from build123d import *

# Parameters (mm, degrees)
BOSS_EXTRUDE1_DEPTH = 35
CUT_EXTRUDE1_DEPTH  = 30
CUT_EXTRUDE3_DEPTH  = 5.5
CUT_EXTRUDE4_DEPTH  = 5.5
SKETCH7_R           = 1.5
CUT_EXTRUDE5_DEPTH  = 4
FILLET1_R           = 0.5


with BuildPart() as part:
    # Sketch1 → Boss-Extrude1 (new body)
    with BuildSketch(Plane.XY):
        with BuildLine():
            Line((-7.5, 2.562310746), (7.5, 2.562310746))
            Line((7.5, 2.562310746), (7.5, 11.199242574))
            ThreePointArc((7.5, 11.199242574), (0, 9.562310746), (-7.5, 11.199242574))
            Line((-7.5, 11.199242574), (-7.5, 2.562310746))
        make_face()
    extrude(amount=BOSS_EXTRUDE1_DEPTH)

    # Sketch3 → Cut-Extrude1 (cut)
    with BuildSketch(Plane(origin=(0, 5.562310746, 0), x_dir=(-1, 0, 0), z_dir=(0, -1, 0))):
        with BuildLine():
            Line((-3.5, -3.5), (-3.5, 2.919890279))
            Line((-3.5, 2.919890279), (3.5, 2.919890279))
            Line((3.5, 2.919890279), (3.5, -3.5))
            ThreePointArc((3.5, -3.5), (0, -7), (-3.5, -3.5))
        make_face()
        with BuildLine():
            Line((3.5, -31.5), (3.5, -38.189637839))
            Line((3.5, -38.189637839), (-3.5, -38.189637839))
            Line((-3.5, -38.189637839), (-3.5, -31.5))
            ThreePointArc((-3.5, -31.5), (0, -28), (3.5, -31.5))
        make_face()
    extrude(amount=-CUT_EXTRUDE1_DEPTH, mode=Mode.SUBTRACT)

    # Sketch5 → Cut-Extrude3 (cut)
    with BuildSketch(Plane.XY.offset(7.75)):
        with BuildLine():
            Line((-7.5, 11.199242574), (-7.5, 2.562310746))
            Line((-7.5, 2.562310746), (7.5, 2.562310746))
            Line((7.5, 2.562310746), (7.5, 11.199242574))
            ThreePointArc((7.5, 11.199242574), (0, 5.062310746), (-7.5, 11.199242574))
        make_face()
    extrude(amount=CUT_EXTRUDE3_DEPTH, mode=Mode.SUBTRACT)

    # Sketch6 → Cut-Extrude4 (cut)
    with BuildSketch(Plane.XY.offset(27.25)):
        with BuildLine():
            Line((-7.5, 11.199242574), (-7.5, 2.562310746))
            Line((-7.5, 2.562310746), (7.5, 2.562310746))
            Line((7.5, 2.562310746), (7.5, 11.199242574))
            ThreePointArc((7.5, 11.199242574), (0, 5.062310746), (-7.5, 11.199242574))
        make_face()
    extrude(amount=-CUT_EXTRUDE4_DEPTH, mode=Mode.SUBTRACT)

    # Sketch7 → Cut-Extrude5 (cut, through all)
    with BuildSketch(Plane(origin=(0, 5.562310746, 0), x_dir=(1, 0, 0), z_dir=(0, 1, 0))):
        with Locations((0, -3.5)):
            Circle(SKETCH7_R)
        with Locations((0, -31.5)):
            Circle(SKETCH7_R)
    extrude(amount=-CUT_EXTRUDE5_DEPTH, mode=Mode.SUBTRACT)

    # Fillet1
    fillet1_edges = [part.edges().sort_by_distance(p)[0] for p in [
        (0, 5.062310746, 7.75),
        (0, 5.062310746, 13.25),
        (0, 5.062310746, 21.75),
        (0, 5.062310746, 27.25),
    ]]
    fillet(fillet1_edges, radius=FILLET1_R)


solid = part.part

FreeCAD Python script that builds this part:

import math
import FreeCAD as App
import Part
import Sketcher
Q = App.Units.Quantity


def edges_at(feature, points):
    """Names of the edges that pass closest to the given points."""
    edges = feature.Shape.Edges
    near = lambda p: min(range(len(edges)), key=lambda i: edges[i].distToShape(Part.Vertex(*p))[0])
    return sorted({f"Edge{near(p) + 1}" for p in points})

doc = App.newDocument("Part")
body = doc.addObject("PartDesign::Body", "Body")

sketch1 = body.newObject("Sketcher::SketchObject", "Sketch")
sketch1.AttachmentSupport = (doc.getObject("XY_Plane"), [""])
sketch1.MapMode = "FlatFace"
sketch1.addGeometry([
    Part.LineSegment(App.Vector(-8, 3, 0), App.Vector(8, 3, 0)),
    Part.LineSegment(App.Vector(8, 3, 0), App.Vector(8, 11, 0)),
    Part.ArcOfCircle(Part.Circle(App.Vector(0, 28, 0), App.Vector(0, 0, 1), 18), math.radians(-115), math.radians(-65)),
    Part.LineSegment(App.Vector(-8, 11, 0), App.Vector(-8, 3, 0)),
], False)
sketch1.addConstraint([
    Sketcher.Constraint("Coincident", 0, 2, 1, 1),
    Sketcher.Constraint("Coincident", 1, 2, 2, 2),
    Sketcher.Constraint("Coincident", 2, 1, 3, 1),
    Sketcher.Constraint("Coincident", 3, 2, 0, 1),
    Sketcher.Constraint("Horizontal", 0),
    Sketcher.Constraint("Vertical", 1),
    Sketcher.Constraint("Vertical", 3),
    Sketcher.Constraint("Symmetric", 1, 2, 2, 1, -2),
    Sketcher.Constraint("Radius", 2, Q("18 mm")),
    Sketcher.Constraint("DistanceX", 0, 1, 0, 2, Q("15 mm")),
    Sketcher.Constraint("DistanceY", 0, 2, 2, 3, Q("25 mm")),
    Sketcher.Constraint("DistanceY", -1, 1, 2, 3, Q("27.562311 mm")),
])
pad1 = body.newObject("PartDesign::Pad", "Pad")
pad1.Profile = sketch1
pad1.Length = 35

sketch2 = body.newObject("Sketcher::SketchObject", "Sketch001")
sketch2.AttachmentSupport = (doc.getObject("XZ_Plane"), [""])
sketch2.MapMode = "FlatFace"
sketch2.AttachmentOffset = App.Placement(App.Vector(0, 0, -5.562311), App.Rotation())
sketch2.addGeometry([
    Part.LineSegment(App.Vector(3.5, -2.9, 0), App.Vector(3.5, 3.5, 0)),
    Part.ArcOfCircle(Part.Circle(App.Vector(0, 3.5, 0), App.Vector(0, 0, 1), 3.5), math.radians(0), math.radians(180)),
    Part.LineSegment(App.Vector(-3.5, 3.5, 0), App.Vector(-3.5, -2.9, 0)),
    Part.LineSegment(App.Vector(-3.5, -2.9, 0), App.Vector(3.5, -2.9, 0)),
    Part.LineSegment(App.Vector(-3.5, 38.2, 0), App.Vector(-3.5, 31.5, 0)),
    Part.ArcOfCircle(Part.Circle(App.Vector(0, 31.5, 0), App.Vector(0, 0, 1), 3.5), math.radians(180), math.radians(360)),
    Part.LineSegment(App.Vector(3.5, 31.5, 0), App.Vector(3.5, 38.2, 0)),
    Part.LineSegment(App.Vector(3.5, 38.2, 0), App.Vector(-3.5, 38.2, 0)),
], False)
sketch2.addConstraint([
    Sketcher.Constraint("Tangent", 0, 2, 1, 1),
    Sketcher.Constraint("Tangent", 1, 2, 2, 1),
    Sketcher.Constraint("Coincident", 2, 2, 3, 1),
    Sketcher.Constraint("Coincident", 3, 2, 0, 1),
    Sketcher.Constraint("Tangent", 4, 2, 5, 1),
    Sketcher.Constraint("Tangent", 5, 2, 6, 1),
    Sketcher.Constraint("Coincident", 6, 2, 7, 1),
    Sketcher.Constraint("Coincident", 7, 2, 4, 1),
    Sketcher.Constraint("Vertical", 0),
    Sketcher.Constraint("Vertical", 2),
    Sketcher.Constraint("Horizontal", 3),
    Sketcher.Constraint("Vertical", 4),
    Sketcher.Constraint("Vertical", 6),
    Sketcher.Constraint("Horizontal", 7),
    Sketcher.Constraint("Equal", 1, 5),
    Sketcher.Constraint("PointOnObject", 1, 3, -2),
    Sketcher.Constraint("PointOnObject", 5, 3, -2),
    Sketcher.Constraint("Radius", 1, Q("3.5 mm")),
    Sketcher.Constraint("DistanceY", 1, 3, 5, 3, Q("28 mm")),
    Sketcher.Constraint("DistanceY", -1, 1, 1, 3, Q("3.5 mm")),
    Sketcher.Constraint("DistanceY", 0, 1, 0, 2, Q("6.41989 mm")),
    Sketcher.Constraint("DistanceY", 4, 2, 4, 1, Q("6.689638 mm")),
])
pocket1 = body.newObject("PartDesign::Pocket", "Pocket")
pocket1.Profile = sketch2
pocket1.Length = 30

sketch3 = body.newObject("Sketcher::SketchObject", "Sketch002")
sketch3.AttachmentSupport = (doc.getObject("XY_Plane"), [""])
sketch3.MapMode = "FlatFace"
sketch3.AttachmentOffset = App.Placement(App.Vector(0, 0, 7.75), App.Rotation())
sketch3.addGeometry([
    Part.LineSegment(App.Vector(-8, 11, 0), App.Vector(-8, 3, 0)),
    Part.LineSegment(App.Vector(-8, 3, 0), App.Vector(8, 3, 0)),
    Part.LineSegment(App.Vector(8, 3, 0), App.Vector(8, 11, 0)),
    Part.ArcOfCircle(Part.Circle(App.Vector(0, 13, 0), App.Vector(0, 0, 1), 8), math.radians(-169), math.radians(-11)),
], False)
sketch3.addConstraint([
    Sketcher.Constraint("Coincident", 0, 2, 1, 1),
    Sketcher.Constraint("Coincident", 1, 2, 2, 1),
    Sketcher.Constraint("Coincident", 2, 2, 3, 2),
    Sketcher.Constraint("Coincident", 3, 1, 0, 1),
    Sketcher.Constraint("Vertical", 0),
    Sketcher.Constraint("Horizontal", 1),
    Sketcher.Constraint("Vertical", 2),
    Sketcher.Constraint("Symmetric", 2, 2, 3, 1, -2),
    Sketcher.Constraint("DistanceX", 1, 1, 1, 2, Q("15 mm")),
    Sketcher.Constraint("Radius", 3, Q("7.651375 mm")),
    Sketcher.Constraint("DistanceY", 0, 2, 0, 1, Q("8.636932 mm")),
    Sketcher.Constraint("DistanceY", -1, 1, 0, 2, Q("2.562311 mm")),
])
pocket2 = body.newObject("PartDesign::Pocket", "Pocket001")
pocket2.Profile = sketch3
pocket2.Length = 5.5
pocket2.Reversed = True

sketch4 = body.newObject("Sketcher::SketchObject", "Sketch003")
sketch4.AttachmentSupport = (doc.getObject("XY_Plane"), [""])
sketch4.MapMode = "FlatFace"
sketch4.AttachmentOffset = App.Placement(App.Vector(0, 0, 27.25), App.Rotation())
sketch4.addGeometry([
    Part.LineSegment(App.Vector(-8, 11, 0), App.Vector(-8, 3, 0)),
    Part.LineSegment(App.Vector(-8, 3, 0), App.Vector(8, 3, 0)),
    Part.LineSegment(App.Vector(8, 3, 0), App.Vector(8, 11, 0)),
    Part.ArcOfCircle(Part.Circle(App.Vector(0, 13, 0), App.Vector(0, 0, 1), 8), math.radians(-169), math.radians(-11)),
], False)
sketch4.addConstraint([
    Sketcher.Constraint("Coincident", 0, 2, 1, 1),
    Sketcher.Constraint("Coincident", 1, 2, 2, 1),
    Sketcher.Constraint("Coincident", 2, 2, 3, 2),
    Sketcher.Constraint("Coincident", 3, 1, 0, 1),
    Sketcher.Constraint("Vertical", 0),
    Sketcher.Constraint("Horizontal", 1),
    Sketcher.Constraint("Vertical", 2),
    Sketcher.Constraint("Symmetric", 2, 2, 3, 1, -2),
    Sketcher.Constraint("DistanceX", 1, 1, 1, 2, Q("15 mm")),
    Sketcher.Constraint("Radius", 3, Q("7.651375 mm")),
    Sketcher.Constraint("DistanceY", 0, 2, 0, 1, Q("8.636932 mm")),
    Sketcher.Constraint("DistanceY", -1, 1, 0, 2, Q("2.562311 mm")),
])
pocket3 = body.newObject("PartDesign::Pocket", "Pocket002")
pocket3.Profile = sketch4
pocket3.Length = 5.5

sketch5 = body.newObject("Sketcher::SketchObject", "Sketch004")
sketch5.AttachmentSupport = (doc.getObject("XZ_Plane"), [""])
sketch5.MapMode = "FlatFace"
sketch5.AttachmentOffset = App.Placement(App.Vector(0, 0, -5.562311), App.Rotation())
sketch5.addGeometry([
    Part.Circle(App.Vector(0, 3.5, 0), App.Vector(0, 0, 1), 1.5),
    Part.Circle(App.Vector(0, 31.5, 0), App.Vector(0, 0, 1), 1.5),
], False)
sketch5.addConstraint([
    Sketcher.Constraint("Equal", 0, 1),
    Sketcher.Constraint("PointOnObject", 0, 3, -2),
    Sketcher.Constraint("PointOnObject", 1, 3, -2),
    Sketcher.Constraint("Diameter", 0, Q("3 mm")),
    Sketcher.Constraint("DistanceY", 0, 3, 1, 3, Q("28 mm")),
    Sketcher.Constraint("DistanceY", -1, 1, 0, 3, Q("3.5 mm")),
])
pocket4 = body.newObject("PartDesign::Pocket", "Pocket003")
pocket4.Profile = sketch5
pocket4.Type = "ThroughAll"
pocket4.Reversed = True
doc.recompute()

fillet = body.newObject("PartDesign::Fillet", "Fillet")
fillet.Base = (pocket4, edges_at(pocket4, [
    (0, 5.062, 7.75),
    (0, 5.062, 13.25),
    (0, 5.062, 21.75),
    (0, 5.062, 27.25),
]))
fillet.Radius = 0.5

doc.recompute()
